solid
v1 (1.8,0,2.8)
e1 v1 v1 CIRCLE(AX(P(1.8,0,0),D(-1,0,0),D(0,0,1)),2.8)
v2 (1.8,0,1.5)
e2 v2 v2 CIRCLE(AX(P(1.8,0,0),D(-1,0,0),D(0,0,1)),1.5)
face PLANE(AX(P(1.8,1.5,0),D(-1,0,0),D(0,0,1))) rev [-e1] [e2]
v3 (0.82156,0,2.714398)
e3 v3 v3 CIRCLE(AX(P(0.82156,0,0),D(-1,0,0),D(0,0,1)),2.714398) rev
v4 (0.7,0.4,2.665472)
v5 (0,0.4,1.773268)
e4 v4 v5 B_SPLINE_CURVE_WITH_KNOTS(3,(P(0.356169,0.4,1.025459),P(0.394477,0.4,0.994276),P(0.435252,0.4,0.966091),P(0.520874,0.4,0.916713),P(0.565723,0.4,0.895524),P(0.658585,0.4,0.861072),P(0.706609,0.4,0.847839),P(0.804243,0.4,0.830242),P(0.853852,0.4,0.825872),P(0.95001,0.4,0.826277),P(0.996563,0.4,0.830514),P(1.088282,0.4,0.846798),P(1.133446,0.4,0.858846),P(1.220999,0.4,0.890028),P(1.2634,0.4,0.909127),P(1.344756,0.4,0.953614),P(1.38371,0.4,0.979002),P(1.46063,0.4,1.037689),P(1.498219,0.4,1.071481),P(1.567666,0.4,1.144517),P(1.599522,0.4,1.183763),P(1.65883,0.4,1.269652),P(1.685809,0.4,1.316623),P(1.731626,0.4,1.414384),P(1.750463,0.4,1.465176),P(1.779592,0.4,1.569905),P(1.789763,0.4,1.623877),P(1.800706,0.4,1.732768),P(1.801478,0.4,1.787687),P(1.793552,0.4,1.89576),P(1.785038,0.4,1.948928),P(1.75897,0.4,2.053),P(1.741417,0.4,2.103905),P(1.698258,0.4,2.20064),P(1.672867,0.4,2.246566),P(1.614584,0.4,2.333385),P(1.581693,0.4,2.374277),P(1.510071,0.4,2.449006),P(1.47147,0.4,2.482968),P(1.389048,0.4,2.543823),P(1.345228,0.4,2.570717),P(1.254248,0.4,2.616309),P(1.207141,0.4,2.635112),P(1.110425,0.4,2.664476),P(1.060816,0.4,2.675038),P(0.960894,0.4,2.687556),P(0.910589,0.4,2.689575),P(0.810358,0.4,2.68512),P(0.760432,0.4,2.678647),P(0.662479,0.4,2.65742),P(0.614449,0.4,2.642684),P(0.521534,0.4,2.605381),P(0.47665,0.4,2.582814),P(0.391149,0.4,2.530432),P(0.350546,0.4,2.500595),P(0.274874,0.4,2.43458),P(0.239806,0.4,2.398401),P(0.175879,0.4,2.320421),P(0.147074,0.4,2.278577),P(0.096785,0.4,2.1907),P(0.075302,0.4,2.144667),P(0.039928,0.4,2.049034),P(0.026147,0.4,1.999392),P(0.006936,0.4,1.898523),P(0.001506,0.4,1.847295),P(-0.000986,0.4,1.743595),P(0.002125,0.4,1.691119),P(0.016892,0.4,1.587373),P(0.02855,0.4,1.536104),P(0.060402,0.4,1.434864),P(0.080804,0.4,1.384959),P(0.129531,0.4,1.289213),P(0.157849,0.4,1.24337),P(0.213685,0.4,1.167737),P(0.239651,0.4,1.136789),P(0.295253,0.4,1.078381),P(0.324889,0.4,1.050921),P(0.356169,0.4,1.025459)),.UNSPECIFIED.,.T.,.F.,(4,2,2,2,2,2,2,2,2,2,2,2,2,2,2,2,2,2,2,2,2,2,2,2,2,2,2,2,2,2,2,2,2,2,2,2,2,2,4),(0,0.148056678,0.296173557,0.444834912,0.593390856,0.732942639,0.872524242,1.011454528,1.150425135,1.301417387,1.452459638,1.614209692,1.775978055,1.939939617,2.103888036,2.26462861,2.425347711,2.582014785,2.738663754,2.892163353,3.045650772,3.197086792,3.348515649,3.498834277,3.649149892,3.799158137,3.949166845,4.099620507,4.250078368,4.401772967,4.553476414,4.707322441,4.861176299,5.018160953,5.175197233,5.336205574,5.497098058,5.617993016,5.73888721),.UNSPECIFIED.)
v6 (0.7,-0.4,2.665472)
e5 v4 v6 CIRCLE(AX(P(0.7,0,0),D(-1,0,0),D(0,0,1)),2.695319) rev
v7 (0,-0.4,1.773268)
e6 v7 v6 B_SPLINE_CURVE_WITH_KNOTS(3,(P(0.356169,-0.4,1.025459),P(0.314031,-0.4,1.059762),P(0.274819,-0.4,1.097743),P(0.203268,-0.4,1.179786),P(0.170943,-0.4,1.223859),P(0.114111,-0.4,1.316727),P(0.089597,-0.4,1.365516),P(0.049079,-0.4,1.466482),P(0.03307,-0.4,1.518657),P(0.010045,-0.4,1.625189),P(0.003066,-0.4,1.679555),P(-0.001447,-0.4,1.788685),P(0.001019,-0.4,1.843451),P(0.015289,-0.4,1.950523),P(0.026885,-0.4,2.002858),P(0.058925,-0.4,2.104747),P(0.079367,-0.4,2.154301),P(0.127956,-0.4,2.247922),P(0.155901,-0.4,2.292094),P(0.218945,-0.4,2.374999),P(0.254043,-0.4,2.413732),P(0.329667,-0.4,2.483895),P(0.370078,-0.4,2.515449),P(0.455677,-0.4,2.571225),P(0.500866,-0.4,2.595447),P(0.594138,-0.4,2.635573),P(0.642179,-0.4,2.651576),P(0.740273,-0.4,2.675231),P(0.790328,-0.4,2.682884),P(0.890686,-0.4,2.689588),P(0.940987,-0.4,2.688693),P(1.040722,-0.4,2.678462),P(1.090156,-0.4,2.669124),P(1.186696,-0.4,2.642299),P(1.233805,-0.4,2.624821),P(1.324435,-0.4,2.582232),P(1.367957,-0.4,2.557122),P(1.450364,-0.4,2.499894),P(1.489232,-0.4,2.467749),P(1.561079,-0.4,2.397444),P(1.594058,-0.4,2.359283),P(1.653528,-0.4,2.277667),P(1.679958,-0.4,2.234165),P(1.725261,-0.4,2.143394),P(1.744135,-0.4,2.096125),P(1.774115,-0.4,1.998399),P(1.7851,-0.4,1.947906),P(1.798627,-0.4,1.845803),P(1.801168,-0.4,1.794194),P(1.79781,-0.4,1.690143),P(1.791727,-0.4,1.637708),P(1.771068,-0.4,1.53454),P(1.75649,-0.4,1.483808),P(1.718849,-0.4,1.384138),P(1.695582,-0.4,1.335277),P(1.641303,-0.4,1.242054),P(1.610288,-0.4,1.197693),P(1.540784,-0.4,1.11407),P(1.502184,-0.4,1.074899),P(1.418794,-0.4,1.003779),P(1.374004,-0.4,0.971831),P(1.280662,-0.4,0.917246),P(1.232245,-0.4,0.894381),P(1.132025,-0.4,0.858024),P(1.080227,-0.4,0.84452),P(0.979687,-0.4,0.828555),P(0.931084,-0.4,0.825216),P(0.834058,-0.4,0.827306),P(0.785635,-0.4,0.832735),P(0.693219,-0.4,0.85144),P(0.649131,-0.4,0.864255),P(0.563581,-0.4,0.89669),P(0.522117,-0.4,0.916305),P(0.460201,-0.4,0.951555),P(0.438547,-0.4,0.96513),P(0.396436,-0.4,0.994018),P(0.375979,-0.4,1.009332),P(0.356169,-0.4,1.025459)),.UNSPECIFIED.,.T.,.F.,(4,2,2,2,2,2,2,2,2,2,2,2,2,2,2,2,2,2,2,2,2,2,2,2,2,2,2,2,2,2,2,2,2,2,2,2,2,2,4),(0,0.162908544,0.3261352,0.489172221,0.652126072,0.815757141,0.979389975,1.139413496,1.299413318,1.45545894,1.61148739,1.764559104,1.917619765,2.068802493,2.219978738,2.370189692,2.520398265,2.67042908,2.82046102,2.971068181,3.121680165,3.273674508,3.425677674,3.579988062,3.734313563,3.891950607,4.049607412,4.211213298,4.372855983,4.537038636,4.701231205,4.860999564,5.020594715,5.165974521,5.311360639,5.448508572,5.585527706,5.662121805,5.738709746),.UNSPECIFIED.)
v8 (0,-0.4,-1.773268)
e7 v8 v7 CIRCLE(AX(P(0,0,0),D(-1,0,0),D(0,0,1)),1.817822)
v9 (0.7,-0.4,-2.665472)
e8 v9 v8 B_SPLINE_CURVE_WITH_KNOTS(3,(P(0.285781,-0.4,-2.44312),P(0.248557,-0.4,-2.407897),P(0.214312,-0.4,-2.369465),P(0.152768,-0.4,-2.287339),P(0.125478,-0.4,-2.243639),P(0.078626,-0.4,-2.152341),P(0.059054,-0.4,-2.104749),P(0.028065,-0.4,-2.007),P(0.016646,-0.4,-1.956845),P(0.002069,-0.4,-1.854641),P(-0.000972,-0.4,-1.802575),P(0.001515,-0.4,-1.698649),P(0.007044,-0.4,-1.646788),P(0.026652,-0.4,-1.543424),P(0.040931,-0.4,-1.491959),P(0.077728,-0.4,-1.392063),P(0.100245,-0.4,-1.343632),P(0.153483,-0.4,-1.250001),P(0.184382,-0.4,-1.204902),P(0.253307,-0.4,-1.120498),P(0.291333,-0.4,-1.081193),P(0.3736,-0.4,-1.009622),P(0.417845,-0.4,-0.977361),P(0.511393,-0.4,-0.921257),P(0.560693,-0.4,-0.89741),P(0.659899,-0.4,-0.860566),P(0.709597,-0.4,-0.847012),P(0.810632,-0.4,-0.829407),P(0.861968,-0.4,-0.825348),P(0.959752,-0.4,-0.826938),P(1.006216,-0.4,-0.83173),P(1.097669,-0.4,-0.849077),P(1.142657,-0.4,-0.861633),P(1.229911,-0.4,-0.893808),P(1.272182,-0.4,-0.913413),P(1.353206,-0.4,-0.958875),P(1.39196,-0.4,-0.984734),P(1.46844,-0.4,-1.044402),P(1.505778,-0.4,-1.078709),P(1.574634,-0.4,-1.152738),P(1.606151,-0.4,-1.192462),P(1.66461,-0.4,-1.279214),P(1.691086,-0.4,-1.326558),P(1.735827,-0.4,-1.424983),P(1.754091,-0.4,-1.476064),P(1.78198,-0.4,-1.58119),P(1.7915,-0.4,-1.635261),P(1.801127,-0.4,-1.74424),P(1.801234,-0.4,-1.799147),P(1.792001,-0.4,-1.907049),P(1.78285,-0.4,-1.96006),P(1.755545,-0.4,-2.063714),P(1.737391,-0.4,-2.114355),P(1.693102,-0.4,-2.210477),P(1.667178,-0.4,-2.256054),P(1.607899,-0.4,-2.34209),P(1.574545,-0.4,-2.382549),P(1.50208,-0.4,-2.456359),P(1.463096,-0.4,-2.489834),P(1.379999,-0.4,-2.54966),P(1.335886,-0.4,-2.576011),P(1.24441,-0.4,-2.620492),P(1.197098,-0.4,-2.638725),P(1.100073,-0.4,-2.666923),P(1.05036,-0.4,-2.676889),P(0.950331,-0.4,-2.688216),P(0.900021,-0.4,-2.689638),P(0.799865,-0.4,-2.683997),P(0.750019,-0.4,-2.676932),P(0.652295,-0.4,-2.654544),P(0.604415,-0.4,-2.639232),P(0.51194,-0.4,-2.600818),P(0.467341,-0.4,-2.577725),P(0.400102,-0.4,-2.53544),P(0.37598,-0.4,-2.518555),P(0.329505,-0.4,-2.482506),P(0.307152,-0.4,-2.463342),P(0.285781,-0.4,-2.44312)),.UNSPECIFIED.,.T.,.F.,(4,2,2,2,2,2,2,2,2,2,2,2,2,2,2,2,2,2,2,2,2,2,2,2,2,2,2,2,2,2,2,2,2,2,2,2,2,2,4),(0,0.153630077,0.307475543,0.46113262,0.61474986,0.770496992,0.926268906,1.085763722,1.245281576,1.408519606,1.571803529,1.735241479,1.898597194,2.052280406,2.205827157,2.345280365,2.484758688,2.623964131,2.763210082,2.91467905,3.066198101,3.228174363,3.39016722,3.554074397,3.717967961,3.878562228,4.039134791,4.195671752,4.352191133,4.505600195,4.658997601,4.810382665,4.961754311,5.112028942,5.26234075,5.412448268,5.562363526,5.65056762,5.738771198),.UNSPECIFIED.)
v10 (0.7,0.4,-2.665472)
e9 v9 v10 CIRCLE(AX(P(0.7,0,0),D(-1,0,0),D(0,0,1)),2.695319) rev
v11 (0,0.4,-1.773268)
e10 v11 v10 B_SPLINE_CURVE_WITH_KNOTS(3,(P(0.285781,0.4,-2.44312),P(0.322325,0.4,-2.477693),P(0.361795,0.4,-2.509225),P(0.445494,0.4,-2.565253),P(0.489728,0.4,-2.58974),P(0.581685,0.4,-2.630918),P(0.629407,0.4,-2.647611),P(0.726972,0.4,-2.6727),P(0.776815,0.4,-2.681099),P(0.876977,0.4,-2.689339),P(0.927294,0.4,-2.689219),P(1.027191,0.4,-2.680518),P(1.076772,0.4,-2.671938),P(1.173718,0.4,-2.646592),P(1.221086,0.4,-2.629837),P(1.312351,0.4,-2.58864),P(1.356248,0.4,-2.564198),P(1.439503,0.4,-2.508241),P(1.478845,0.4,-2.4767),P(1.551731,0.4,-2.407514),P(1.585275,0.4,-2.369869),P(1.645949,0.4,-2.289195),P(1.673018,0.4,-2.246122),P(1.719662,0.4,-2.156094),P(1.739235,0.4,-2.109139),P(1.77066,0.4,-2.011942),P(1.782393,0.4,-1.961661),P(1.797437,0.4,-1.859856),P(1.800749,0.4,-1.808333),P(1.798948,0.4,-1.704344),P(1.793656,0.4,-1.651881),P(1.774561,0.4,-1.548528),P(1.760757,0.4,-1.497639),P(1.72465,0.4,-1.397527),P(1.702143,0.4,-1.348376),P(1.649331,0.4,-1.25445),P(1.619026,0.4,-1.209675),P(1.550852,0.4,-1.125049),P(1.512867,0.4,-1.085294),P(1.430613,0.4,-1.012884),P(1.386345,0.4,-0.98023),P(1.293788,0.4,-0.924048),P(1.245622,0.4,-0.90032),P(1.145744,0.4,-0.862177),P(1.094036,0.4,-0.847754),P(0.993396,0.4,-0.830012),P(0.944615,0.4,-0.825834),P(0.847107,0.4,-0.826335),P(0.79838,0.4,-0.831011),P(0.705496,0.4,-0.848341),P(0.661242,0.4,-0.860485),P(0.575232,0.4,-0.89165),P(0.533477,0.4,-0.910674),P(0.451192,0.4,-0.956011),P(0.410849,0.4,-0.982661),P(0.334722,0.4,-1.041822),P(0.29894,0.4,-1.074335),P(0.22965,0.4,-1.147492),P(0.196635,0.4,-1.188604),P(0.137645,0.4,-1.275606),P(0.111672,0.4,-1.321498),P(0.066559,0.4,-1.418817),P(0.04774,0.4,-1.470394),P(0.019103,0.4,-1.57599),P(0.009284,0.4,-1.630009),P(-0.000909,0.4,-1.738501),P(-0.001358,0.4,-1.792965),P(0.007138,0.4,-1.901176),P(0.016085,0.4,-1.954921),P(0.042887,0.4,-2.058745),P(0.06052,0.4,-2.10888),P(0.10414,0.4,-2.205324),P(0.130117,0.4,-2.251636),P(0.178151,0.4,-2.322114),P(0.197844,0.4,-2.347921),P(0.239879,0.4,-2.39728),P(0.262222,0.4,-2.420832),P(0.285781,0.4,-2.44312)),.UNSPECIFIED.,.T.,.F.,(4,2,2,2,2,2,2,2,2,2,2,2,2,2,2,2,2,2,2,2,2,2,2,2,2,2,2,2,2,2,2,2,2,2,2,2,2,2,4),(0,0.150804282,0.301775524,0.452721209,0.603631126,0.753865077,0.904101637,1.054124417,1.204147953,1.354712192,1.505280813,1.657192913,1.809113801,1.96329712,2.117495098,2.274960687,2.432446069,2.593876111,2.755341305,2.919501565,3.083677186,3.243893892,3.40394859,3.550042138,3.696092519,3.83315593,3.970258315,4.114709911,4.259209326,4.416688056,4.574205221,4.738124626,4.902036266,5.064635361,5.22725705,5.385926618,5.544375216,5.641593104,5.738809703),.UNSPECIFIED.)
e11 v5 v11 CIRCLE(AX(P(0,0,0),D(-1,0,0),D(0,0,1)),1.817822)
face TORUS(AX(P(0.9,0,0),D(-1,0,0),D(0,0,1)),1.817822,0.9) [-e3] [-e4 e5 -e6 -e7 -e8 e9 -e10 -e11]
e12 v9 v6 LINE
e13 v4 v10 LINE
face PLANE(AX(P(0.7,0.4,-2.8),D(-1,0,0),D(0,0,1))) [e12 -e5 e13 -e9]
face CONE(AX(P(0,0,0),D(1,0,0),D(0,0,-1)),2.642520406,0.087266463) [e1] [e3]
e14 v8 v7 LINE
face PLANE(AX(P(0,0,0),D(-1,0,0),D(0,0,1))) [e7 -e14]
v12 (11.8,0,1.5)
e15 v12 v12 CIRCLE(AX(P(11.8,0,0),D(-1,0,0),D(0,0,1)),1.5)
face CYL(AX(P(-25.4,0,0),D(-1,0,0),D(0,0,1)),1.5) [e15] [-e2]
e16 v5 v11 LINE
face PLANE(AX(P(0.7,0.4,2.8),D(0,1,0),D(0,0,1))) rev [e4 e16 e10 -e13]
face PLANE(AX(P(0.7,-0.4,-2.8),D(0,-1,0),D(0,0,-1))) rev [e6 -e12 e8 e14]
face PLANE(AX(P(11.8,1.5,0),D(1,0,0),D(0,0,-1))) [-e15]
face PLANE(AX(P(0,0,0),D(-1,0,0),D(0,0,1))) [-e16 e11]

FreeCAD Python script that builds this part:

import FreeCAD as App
import Part
import Sketcher
Q = App.Units.Quantity


def edges_at(feature, points):
    """Names of the edges that pass closest to the given points."""
    edges = feature.Shape.Edges
    near = lambda p: min(range(len(edges)), key=lambda i: edges[i].distToShape(Part.Vertex(*p))[0])
    return sorted({f"Edge{near(p) + 1}" for p in points})

doc = App.newDocument("Part")
body = doc.addObject("PartDesign::Body", "Body")

# Sketch on XY plane
sketch1 = doc.addObject("Sketcher::SketchObject", "Sketch")
body.addObject(sketch1)
sketch1.AttachmentSupport = (doc.XY_Plane, [""])
sketch1.MapMode = "FlatFace"
sketch1.addGeometry(Part.LineSegment(App.Vector(1.8, 1.5, 0), App.Vector(1.8, 2.8, 0)), False)
sketch1.addGeometry(Part.LineSegment(App.Vector(1.8, 2.8, 0), App.Vector(0, 2.6, 0)), False)
sketch1.addGeometry(Part.LineSegment(App.Vector(0, 2.6, 0), App.Vector(0, 0, 0)), False)
sketch1.addGeometry(Part.LineSegment(App.Vector(0, 0, 0), App.Vector(11.8, 0, 0)), False)
sketch1.addGeometry(Part.LineSegment(App.Vector(11.8, 0, 0), App.Vector(11.8, 1.5, 0)), False)
sketch1.addGeometry(Part.LineSegment(App.Vector(11.8, 1.5, 0), App.Vector(1.8, 1.5, 0)), False)
sketch1.addConstraint(Sketcher.Constraint("Coincident", 0, 2, 1, 1))
sketch1.addConstraint(Sketcher.Constraint("Coincident", 1, 2, 2, 1))
sketch1.addConstraint(Sketcher.Constraint("Coincident", 2, 2, 3, 1))
sketch1.addConstraint(Sketcher.Constraint("Coincident", 3, 2, 4, 1))
sketch1.addConstraint(Sketcher.Constraint("Coincident", 4, 2, 5, 1))
sketch1.addConstraint(Sketcher.Constraint("Coincident", 5, 2, 0, 1))
sketch1.addConstraint(Sketcher.Constraint("Vertical", 0))
sketch1.addConstraint(Sketcher.Constraint("Vertical", 2))
sketch1.addConstraint(Sketcher.Constraint("Horizontal", 3))
sketch1.addConstraint(Sketcher.Constraint("Vertical", 4))
sketch1.addConstraint(Sketcher.Constraint("Horizontal", 5))
sketch1.addConstraint(Sketcher.Constraint("Coincident", 2, 2, -1, 1))
sketch1.addConstraint(Sketcher.Constraint("DistanceX", 5, 2, 5, 1, 10.0))
sketch1.addConstraint(Sketcher.Constraint("Angle", 1, Q("-175 deg")))
sketch1.addConstraint(Sketcher.Constraint("DistanceX", 3, 1, 3, 2, 11.8))
sketch1.addConstraint(Sketcher.Constraint("DistanceY", 0, 1, 0, 2, 1.3))
sketch1.addConstraint(Sketcher.Constraint("DistanceY", 4, 1, 4, 2, 1.5))
revolution = doc.addObject("PartDesign::Revolution", "Revolution")
body.addObject(revolution)
revolution.Profile = sketch1
revolution.ReferenceAxis = (sketch1, ["H_Axis"])
revolution.Angle = 360
doc.recompute()

fillet = doc.addObject("PartDesign::Fillet", "Fillet")
body.addObject(fillet)
fillet.Base = (revolution, edges_at(revolution, [(0, 0, -2.643)]))
fillet.Radius = 0.9

# Sketch on YZ plane
sketch2 = doc.addObject("Sketcher::SketchObject", "Sketch001")
body.addObject(sketch2)
sketch2.AttachmentSupport = (doc.YZ_Plane, [""])
sketch2.MapMode = "FlatFace"
sketch2.addGeometry(Part.LineSegment(App.Vector(0.4, 2.8, 0), App.Vector(-0.4, 2.8, 0)), False)
sketch2.addGeometry(Part.LineSegment(App.Vector(-0.4, 2.8, 0), App.Vector(-0.4, -2.8, 0)), False)
sketch2.addGeometry(Part.LineSegment(App.Vector(-0.4, -2.8, 0), App.Vector(0.4, -2.8, 0)), False)
sketch2.addGeometry(Part.LineSegment(App.Vector(0.4, -2.8, 0), App.Vector(0.4, 2.8, 0)), False)
sketch2.addConstraint(Sketcher.Constraint("Coincident", 0, 2, 1, 1))
sketch2.addConstraint(Sketcher.Constraint("Coincident", 1, 2, 2, 1))
sketch2.addConstraint(Sketcher.Constraint("Coincident", 2, 2, 3, 1))
sketch2.addConstraint(Sketcher.Constraint("Coincident", 3, 2, 0, 1))
sketch2.addConstraint(Sketcher.Constraint("Horizontal", 0))
sketch2.addConstraint(Sketcher.Constraint("Vertical", 1))
sketch2.addConstraint(Sketcher.Constraint("Horizontal", 2))
sketch2.addConstraint(Sketcher.Constraint("Vertical", 3))
sketch2.addConstraint(Sketcher.Constraint("Symmetric", 0, 2, 2, 2, -1, 1))
sketch2.addConstraint(Sketcher.Constraint("DistanceX", 0, 2, 0, 1, 0.8))
sketch2.addConstraint(Sketcher.Constraint("DistanceY", 1, 2, 1, 1, 5.6))
pocket1 = doc.addObject("PartDesign::Pocket", "Pocket")
body.addObject(pocket1)
pocket1.Profile = sketch2
pocket1.Length = 0.7
pocket1.Reversed = True

doc.recompute()
